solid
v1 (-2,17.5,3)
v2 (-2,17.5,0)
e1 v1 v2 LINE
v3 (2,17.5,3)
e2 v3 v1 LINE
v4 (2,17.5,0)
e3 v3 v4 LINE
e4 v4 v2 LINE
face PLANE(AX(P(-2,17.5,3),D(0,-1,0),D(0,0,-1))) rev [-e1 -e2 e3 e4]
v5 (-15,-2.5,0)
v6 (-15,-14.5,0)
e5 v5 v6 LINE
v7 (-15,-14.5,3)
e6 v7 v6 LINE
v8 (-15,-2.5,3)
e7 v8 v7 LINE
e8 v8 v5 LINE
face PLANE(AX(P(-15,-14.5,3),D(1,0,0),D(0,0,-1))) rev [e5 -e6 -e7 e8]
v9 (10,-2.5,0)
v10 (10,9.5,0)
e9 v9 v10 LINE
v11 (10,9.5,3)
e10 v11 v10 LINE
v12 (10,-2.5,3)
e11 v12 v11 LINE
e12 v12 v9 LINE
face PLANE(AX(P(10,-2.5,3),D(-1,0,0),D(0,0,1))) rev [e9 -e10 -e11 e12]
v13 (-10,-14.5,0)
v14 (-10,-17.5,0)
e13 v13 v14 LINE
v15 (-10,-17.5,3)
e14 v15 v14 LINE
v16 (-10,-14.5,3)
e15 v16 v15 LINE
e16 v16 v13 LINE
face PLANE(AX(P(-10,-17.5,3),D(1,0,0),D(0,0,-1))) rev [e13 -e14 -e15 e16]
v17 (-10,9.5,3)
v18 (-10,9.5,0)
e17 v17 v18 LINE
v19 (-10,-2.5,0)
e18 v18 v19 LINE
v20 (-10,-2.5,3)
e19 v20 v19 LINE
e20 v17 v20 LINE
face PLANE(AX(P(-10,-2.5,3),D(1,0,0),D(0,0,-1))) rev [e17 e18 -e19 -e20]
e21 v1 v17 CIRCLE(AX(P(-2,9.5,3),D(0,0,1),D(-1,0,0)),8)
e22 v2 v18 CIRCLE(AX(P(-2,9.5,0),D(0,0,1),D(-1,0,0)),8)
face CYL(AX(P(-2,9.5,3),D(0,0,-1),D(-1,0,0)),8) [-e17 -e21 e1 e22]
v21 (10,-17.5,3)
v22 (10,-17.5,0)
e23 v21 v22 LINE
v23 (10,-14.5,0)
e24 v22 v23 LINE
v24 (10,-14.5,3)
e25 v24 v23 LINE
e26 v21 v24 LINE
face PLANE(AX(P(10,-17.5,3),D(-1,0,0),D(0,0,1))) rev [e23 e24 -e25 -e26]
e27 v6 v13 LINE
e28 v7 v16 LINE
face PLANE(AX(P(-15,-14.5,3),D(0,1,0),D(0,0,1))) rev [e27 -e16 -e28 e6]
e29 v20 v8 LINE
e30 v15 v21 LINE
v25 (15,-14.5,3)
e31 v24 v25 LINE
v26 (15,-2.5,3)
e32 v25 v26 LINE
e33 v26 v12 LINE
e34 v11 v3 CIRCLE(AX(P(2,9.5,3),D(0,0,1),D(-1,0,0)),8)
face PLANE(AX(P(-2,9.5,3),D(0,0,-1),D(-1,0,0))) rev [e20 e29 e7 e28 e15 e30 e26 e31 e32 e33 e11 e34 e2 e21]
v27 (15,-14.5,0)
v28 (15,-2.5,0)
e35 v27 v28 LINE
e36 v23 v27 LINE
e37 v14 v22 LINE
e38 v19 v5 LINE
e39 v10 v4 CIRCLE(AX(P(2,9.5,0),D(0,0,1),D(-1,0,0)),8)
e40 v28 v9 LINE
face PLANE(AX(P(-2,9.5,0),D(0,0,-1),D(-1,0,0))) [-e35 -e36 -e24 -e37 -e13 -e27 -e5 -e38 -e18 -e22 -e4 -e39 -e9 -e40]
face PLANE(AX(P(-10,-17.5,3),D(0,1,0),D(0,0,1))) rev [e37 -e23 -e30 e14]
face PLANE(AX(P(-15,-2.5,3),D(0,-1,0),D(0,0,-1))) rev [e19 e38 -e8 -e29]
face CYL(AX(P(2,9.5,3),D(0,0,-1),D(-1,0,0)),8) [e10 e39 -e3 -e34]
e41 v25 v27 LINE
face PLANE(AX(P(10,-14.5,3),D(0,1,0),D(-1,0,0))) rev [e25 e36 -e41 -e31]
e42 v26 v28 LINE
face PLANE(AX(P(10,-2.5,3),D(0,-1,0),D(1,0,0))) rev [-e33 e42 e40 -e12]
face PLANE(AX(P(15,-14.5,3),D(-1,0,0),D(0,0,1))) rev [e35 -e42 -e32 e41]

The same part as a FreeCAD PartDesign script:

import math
import FreeCAD as App
import Part
import Sketcher

V = App.Vector

doc = App.newDocument("Part")
params = doc.addObject("Spreadsheet::Sheet", "Params")
for row, (alias, value) in enumerate([
    ("sketch1_radius", "8 mm"),
    ("sketch1_width", "5 mm"),
    ("sketch1_width2", "20 mm"),
    ("sketch1_height", "12 mm"),
    ("sketch1_height2", "3 mm"),
    ("pad1_length", "3 mm"),
], start=1):
    params.set(f"A{row}", alias)
    params.set(f"B{row}", "=" + value)
    params.setAlias(f"B{row}", alias)

body = doc.addObject("PartDesign::Body", "Body")

# Sketch on XY plane
sketch1 = body.newObject("Sketcher::SketchObject", "Sketch")
sketch1.AttachmentSupport = (doc.getObject("XY_Plane"), [""])
sketch1.MapMode = "FlatFace"
sketch1.addGeometry([
    Part.LineSegment(V(-10, 9.5, 0), V(-10, -2.5, 0)),  # 0
    Part.LineSegment(V(-10, -2.5, 0), V(-15, -2.5, 0)),  # 1
    Part.LineSegment(V(-15, -2.5, 0), V(-15, -14.5, 0)),  # 2
    Part.LineSegment(V(-15, -14.5, 0), V(-10, -14.5, 0)),  # 3
    Part.LineSegment(V(-10, -14.5, 0), V(-10, -17.5, 0)),  # 4
    Part.LineSegment(V(-10, -17.5, 0), V(10, -17.5, 0)),  # 5
    Part.LineSegment(V(10, -17.5, 0), V(10, -14.5, 0)),  # 6
    Part.LineSegment(V(10, -14.5, 0), V(15, -14.5, 0)),  # 7
    Part.LineSegment(V(15, -14.5, 0), V(15, -2.5, 0)),  # 8
    Part.LineSegment(V(15, -2.5, 0), V(10, -2.5, 0)),  # 9
    Part.LineSegment(V(10, -2.5, 0), V(10, 9.5, 0)),  # 10
    Part.ArcOfCircle(Part.Circle(V(2, 9.5, 0), V(0, 0, 1), 8), math.radians(0), math.radians(90)),  # 11
    Part.LineSegment(V(2, 17.5, 0), V(-2, 17.5, 0)),  # 12
    Part.ArcOfCircle(Part.Circle(V(-2, 9.5, 0), V(0, 0, 1), 8), math.radians(90), math.radians(180)),  # 13
], False)
sketch1.addConstraint([
    Sketcher.Constraint("Coincident", 0, 2, 1, 1),
    Sketcher.Constraint("Coincident", 1, 2, 2, 1),
    Sketcher.Constraint("Coincident", 2, 2, 3, 1),
    Sketcher.Constraint("Coincident", 3, 2, 4, 1),
    Sketcher.Constraint("Coincident", 4, 2, 5, 1),
    Sketcher.Constraint("Coincident", 5, 2, 6, 1),
    Sketcher.Constraint("Coincident", 6, 2, 7, 1),
    Sketcher.Constraint("Coincident", 7, 2, 8, 1),
    Sketcher.Constraint("Coincident", 8, 2, 9, 1),
    Sketcher.Constraint("Coincident", 9, 2, 10, 1),
    Sketcher.Constraint("Tangent", 10, 2, 11, 1),
    Sketcher.Constraint("Tangent", 11, 2, 12, 1),
    Sketcher.Constraint("Tangent", 12, 2, 13, 1),
    Sketcher.Constraint("Tangent", 13, 2, 0, 1),
    Sketcher.Constraint("Vertical", 0),
    Sketcher.Constraint("Horizontal", 1),
    Sketcher.Constraint("Vertical", 2),
    Sketcher.Constraint("Horizontal", 3),
    Sketcher.Constraint("Vertical", 4),
    Sketcher.Constraint("Horizontal", 5),
    Sketcher.Constraint("Vertical", 6),
    Sketcher.Constraint("Horizontal", 7),
    Sketcher.Constraint("Vertical", 8),
    Sketcher.Constraint("Horizontal", 9),
    Sketcher.Constraint("Vertical", 10),
    Sketcher.Constraint("Horizontal", 12),
    Sketcher.Constraint("Equal", 11, 13),
    Sketcher.Constraint("Symmetric", 3, 2, 6, 2, -2),
    Sketcher.Constraint("Symmetric", 1, 2, 8, 2, -2),
    Sketcher.Constraint("Vertical", 0, 2, 3, 2),
    Sketcher.Constraint("Vertical", 6, 2, 9, 2),
    Sketcher.Constraint("Equal", 0, 2),
    Sketcher.Constraint("Radius", 11, 8.0),
    Sketcher.Constraint("DistanceX", 1, 2, 1, 1, 5.0),
    Sketcher.Constraint("DistanceX", 5, 1, 5, 2, 20.0),
    Sketcher.Constraint("DistanceY", 0, 2, 0, 1, 12.0),
    Sketcher.Constraint("DistanceY", 4, 2, 4, 1, 3.0),
    Sketcher.Constraint("DistanceY", -1, 1, 11, 3, 9.5),
])
sketch1.setExpression("Constraints[32]", "Params.sketch1_radius")
sketch1.setExpression("Constraints[33]", "Params.sketch1_width")
sketch1.setExpression("Constraints[34]", "Params.sketch1_width2")
sketch1.setExpression("Constraints[35]", "Params.sketch1_height")
sketch1.setExpression("Constraints[36]", "Params.sketch1_height2")
pad1 = body.newObject("PartDesign::Pad", "Pad")
pad1.Profile = sketch1
pad1.setExpression("Length", "Params.pad1_length")

doc.recompute()
